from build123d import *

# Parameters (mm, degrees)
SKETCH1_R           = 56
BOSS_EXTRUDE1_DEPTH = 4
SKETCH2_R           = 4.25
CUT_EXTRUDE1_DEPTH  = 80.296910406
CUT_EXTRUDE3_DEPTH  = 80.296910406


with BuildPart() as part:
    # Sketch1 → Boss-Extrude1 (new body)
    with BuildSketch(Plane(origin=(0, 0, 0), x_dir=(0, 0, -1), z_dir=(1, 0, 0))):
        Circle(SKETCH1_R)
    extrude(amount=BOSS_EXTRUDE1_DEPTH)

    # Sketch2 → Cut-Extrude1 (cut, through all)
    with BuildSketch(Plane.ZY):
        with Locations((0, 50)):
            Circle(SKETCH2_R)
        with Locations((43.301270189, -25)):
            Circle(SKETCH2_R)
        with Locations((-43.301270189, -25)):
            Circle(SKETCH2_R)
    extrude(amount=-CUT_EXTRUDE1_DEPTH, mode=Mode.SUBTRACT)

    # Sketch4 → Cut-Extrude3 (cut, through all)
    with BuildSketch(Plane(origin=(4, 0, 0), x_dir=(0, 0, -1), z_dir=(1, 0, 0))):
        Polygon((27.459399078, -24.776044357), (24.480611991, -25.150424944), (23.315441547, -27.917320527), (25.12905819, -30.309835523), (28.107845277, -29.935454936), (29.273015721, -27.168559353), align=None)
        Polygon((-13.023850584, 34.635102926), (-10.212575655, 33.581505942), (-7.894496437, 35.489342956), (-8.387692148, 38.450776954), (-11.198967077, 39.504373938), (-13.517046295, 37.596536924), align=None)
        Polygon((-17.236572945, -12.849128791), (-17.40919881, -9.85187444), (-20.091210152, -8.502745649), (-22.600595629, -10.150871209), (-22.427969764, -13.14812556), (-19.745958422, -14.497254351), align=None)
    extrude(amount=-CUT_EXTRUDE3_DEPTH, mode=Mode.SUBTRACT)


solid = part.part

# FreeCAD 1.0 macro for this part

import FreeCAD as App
import Part
import Sketcher
Q = App.Units.Quantity


def add_polygon(sketch, points):
    """Adds a closed chain of lines whose ends are joined by coincident constraints."""
    first, n = sketch.GeometryCount, len(points)
    for a, b in zip(points, points[1:] + points[:1]):
        sketch.addGeometry(Part.LineSegment(App.Vector(*a, 0), App.Vector(*b, 0)), False)
    for i in range(n):
        sketch.addConstraint(Sketcher.Constraint("Coincident", first + i, 2, first + (i + 1) % n, 1))

doc = App.newDocument("Part")
body = doc.addObject("PartDesign::Body", "Body")

sketch1 = body.newObject("Sketcher::SketchObject", "Sketch")
sketch1.AttachmentSupport = (doc.getObject("YZ_Plane"), [""])
sketch1.MapMode = "FlatFace"
sketch1.addGeometry(Part.Circle(App.Vector(0, 0, 0), App.Vector(0, 0, 1), 56), False)
sketch1.addConstraint([
    Sketcher.Constraint("Coincident", 0, 3, -1, 1),
    Sketcher.Constraint("Diameter", 0, Q("112 mm")),
])
pad1 = body.newObject("PartDesign::Pad", "Pad")
pad1.Profile = sketch1
pad1.Length = 4

sketch2 = body.newObject("Sketcher::SketchObject", "Sketch001")
sketch2.AttachmentSupport = (doc.getObject("YZ_Plane"), [""])
sketch2.MapMode = "FlatFace"
sketch2.addGeometry([
    Part.Circle(App.Vector(50, 0, 0), App.Vector(0, 0, 1), 4.2),
    Part.Circle(App.Vector(-25, 43.3, 0), App.Vector(0, 0, 1), 4.2),
    Part.Circle(App.Vector(-25, -43.3, 0), App.Vector(0, 0, 1), 4.2),
], False)
sketch2.addConstraint([
    Sketcher.Constraint("Equal", 0, 1),
    Sketcher.Constraint("Equal", 1, 2),
    Sketcher.Constraint("Symmetric", 1, 3, 2, 3, -1),
    Sketcher.Constraint("PointOnObject", 0, 3, -1),
    Sketcher.Constraint("Diameter", 0, Q("8.5 mm")),
    Sketcher.Constraint("DistanceX", -1, 1, 0, 3, Q("50 mm")),
    Sketcher.Constraint("DistanceX", 1, 3, -1, 1, Q("25 mm")),
    Sketcher.Constraint("DistanceY", -1, 1, 1, 3, Q("43.30127 mm")),
])
pocket1 = body.newObject("PartDesign::Pocket", "Pocket")
pocket1.Profile = sketch2
pocket1.Type = "ThroughAll"
pocket1.Reversed = True

sketch3 = body.newObject("Sketcher::SketchObject", "Sketch002")
sketch3.AttachmentSupport = (doc.getObject("YZ_Plane"), [""])
sketch3.MapMode = "FlatFace"
sketch3.AttachmentOffset = App.Placement(App.Vector(0, 0, 4), App.Rotation())
add_polygon(sketch3, [(-24.8, -27.5), (-25.2, -24.5), (-27.9, -23.3), (-30.3, -25.1), (-29.9, -28.1), (-27.2, -29.3)])
add_polygon(sketch3, [(34.6, 13), (33.6, 10.2), (35.5, 7.9), (38.5, 8.4), (39.5, 11.2), (37.6, 13.5)])
add_polygon(sketch3, [(-12.8, 17.2), (-9.9, 17.4), (-8.5, 20.1), (-10.2, 22.6), (-13.1, 22.4), (-14.5, 19.7)])
sketch3.addConstraint([
    Sketcher.Constraint("Parallel", 0, 3),
    Sketcher.Constraint("Parallel", 1, 4),
    Sketcher.Constraint("Parallel", 2, 5),
    Sketcher.Constraint("Parallel", 6, 9),
    Sketcher.Constraint("Parallel", 7, 10),
    Sketcher.Constraint("Parallel", 8, 11),
    Sketcher.Constraint("Parallel", 12, 15),
    Sketcher.Constraint("Parallel", 13, 16),
    Sketcher.Constraint("Parallel", 14, 17),
    Sketcher.Constraint("Equal", 0, 1),
    Sketcher.Constraint("Equal", 1, 2),
    Sketcher.Constraint("Equal", 2, 3),
    Sketcher.Constraint("Equal", 5, 6),
    Sketcher.Constraint("Equal", 6, 7),
    Sketcher.Constraint("Equal", 7, 8),
    Sketcher.Constraint("Equal", 8, 9),
    Sketcher.Constraint("Equal", 11, 12),
    Sketcher.Constraint("Equal", 12, 13),
    Sketcher.Constraint("Equal", 13, 14),
    Sketcher.Constraint("Equal", 14, 15),
    Sketcher.Constraint("DistanceY", 5, 2, -1, 1, Q("27.459399 mm")),
    Sketcher.Constraint("DistanceY", -1, 1, 12, 2, Q("17.409199 mm")),
    Sketcher.Constraint("DistanceX", 0, 2, 8, 2, Q("63.601202 mm")),
    Sketcher.Constraint("DistanceX", 0, 2, 9, 2, Q("64.654799 mm")),
    Sketcher.Constraint("DistanceY", 7, 2, 14, 2, Q("14.706099 mm")),
    Sketcher.Constraint("DistanceY", 1, 2, 16, 2, Q("43.0614 mm")),
    Sketcher.Constraint("Distance", 0, Q("3.002221 mm")),
    Sketcher.Constraint("DistanceY", 0, 2, -1, 1, Q("24.480612 mm")),
    Sketcher.Constraint("DistanceX", 1, 2, -1, 1, Q("27.917321 mm")),
    Sketcher.Constraint("DistanceY", 1, 2, -1, 1, Q("23.315442 mm")),
    Sketcher.Constraint("DistanceY", 2, 2, -1, 1, Q("25.129058 mm")),
    Sketcher.Constraint("DistanceY", -1, 1, 11, 2, Q("13.023851 mm")),
    Sketcher.Constraint("DistanceY", -1, 1, 13, 2, Q("20.09121 mm")),
    Sketcher.Constraint("DistanceX", 14, 2, -1, 1, Q("10.150871 mm")),
    Sketcher.Constraint("DistanceX", 17, 2, -1, 1, Q("12.849129 mm")),
    Sketcher.Constraint("DistanceX", 0, 2, 6, 2, Q("58.731931 mm")),
])
pocket2 = body.newObject("PartDesign::Pocket", "Pocket001")
pocket2.Profile = sketch3
pocket2.Type = "ThroughAll"

doc.recompute()
